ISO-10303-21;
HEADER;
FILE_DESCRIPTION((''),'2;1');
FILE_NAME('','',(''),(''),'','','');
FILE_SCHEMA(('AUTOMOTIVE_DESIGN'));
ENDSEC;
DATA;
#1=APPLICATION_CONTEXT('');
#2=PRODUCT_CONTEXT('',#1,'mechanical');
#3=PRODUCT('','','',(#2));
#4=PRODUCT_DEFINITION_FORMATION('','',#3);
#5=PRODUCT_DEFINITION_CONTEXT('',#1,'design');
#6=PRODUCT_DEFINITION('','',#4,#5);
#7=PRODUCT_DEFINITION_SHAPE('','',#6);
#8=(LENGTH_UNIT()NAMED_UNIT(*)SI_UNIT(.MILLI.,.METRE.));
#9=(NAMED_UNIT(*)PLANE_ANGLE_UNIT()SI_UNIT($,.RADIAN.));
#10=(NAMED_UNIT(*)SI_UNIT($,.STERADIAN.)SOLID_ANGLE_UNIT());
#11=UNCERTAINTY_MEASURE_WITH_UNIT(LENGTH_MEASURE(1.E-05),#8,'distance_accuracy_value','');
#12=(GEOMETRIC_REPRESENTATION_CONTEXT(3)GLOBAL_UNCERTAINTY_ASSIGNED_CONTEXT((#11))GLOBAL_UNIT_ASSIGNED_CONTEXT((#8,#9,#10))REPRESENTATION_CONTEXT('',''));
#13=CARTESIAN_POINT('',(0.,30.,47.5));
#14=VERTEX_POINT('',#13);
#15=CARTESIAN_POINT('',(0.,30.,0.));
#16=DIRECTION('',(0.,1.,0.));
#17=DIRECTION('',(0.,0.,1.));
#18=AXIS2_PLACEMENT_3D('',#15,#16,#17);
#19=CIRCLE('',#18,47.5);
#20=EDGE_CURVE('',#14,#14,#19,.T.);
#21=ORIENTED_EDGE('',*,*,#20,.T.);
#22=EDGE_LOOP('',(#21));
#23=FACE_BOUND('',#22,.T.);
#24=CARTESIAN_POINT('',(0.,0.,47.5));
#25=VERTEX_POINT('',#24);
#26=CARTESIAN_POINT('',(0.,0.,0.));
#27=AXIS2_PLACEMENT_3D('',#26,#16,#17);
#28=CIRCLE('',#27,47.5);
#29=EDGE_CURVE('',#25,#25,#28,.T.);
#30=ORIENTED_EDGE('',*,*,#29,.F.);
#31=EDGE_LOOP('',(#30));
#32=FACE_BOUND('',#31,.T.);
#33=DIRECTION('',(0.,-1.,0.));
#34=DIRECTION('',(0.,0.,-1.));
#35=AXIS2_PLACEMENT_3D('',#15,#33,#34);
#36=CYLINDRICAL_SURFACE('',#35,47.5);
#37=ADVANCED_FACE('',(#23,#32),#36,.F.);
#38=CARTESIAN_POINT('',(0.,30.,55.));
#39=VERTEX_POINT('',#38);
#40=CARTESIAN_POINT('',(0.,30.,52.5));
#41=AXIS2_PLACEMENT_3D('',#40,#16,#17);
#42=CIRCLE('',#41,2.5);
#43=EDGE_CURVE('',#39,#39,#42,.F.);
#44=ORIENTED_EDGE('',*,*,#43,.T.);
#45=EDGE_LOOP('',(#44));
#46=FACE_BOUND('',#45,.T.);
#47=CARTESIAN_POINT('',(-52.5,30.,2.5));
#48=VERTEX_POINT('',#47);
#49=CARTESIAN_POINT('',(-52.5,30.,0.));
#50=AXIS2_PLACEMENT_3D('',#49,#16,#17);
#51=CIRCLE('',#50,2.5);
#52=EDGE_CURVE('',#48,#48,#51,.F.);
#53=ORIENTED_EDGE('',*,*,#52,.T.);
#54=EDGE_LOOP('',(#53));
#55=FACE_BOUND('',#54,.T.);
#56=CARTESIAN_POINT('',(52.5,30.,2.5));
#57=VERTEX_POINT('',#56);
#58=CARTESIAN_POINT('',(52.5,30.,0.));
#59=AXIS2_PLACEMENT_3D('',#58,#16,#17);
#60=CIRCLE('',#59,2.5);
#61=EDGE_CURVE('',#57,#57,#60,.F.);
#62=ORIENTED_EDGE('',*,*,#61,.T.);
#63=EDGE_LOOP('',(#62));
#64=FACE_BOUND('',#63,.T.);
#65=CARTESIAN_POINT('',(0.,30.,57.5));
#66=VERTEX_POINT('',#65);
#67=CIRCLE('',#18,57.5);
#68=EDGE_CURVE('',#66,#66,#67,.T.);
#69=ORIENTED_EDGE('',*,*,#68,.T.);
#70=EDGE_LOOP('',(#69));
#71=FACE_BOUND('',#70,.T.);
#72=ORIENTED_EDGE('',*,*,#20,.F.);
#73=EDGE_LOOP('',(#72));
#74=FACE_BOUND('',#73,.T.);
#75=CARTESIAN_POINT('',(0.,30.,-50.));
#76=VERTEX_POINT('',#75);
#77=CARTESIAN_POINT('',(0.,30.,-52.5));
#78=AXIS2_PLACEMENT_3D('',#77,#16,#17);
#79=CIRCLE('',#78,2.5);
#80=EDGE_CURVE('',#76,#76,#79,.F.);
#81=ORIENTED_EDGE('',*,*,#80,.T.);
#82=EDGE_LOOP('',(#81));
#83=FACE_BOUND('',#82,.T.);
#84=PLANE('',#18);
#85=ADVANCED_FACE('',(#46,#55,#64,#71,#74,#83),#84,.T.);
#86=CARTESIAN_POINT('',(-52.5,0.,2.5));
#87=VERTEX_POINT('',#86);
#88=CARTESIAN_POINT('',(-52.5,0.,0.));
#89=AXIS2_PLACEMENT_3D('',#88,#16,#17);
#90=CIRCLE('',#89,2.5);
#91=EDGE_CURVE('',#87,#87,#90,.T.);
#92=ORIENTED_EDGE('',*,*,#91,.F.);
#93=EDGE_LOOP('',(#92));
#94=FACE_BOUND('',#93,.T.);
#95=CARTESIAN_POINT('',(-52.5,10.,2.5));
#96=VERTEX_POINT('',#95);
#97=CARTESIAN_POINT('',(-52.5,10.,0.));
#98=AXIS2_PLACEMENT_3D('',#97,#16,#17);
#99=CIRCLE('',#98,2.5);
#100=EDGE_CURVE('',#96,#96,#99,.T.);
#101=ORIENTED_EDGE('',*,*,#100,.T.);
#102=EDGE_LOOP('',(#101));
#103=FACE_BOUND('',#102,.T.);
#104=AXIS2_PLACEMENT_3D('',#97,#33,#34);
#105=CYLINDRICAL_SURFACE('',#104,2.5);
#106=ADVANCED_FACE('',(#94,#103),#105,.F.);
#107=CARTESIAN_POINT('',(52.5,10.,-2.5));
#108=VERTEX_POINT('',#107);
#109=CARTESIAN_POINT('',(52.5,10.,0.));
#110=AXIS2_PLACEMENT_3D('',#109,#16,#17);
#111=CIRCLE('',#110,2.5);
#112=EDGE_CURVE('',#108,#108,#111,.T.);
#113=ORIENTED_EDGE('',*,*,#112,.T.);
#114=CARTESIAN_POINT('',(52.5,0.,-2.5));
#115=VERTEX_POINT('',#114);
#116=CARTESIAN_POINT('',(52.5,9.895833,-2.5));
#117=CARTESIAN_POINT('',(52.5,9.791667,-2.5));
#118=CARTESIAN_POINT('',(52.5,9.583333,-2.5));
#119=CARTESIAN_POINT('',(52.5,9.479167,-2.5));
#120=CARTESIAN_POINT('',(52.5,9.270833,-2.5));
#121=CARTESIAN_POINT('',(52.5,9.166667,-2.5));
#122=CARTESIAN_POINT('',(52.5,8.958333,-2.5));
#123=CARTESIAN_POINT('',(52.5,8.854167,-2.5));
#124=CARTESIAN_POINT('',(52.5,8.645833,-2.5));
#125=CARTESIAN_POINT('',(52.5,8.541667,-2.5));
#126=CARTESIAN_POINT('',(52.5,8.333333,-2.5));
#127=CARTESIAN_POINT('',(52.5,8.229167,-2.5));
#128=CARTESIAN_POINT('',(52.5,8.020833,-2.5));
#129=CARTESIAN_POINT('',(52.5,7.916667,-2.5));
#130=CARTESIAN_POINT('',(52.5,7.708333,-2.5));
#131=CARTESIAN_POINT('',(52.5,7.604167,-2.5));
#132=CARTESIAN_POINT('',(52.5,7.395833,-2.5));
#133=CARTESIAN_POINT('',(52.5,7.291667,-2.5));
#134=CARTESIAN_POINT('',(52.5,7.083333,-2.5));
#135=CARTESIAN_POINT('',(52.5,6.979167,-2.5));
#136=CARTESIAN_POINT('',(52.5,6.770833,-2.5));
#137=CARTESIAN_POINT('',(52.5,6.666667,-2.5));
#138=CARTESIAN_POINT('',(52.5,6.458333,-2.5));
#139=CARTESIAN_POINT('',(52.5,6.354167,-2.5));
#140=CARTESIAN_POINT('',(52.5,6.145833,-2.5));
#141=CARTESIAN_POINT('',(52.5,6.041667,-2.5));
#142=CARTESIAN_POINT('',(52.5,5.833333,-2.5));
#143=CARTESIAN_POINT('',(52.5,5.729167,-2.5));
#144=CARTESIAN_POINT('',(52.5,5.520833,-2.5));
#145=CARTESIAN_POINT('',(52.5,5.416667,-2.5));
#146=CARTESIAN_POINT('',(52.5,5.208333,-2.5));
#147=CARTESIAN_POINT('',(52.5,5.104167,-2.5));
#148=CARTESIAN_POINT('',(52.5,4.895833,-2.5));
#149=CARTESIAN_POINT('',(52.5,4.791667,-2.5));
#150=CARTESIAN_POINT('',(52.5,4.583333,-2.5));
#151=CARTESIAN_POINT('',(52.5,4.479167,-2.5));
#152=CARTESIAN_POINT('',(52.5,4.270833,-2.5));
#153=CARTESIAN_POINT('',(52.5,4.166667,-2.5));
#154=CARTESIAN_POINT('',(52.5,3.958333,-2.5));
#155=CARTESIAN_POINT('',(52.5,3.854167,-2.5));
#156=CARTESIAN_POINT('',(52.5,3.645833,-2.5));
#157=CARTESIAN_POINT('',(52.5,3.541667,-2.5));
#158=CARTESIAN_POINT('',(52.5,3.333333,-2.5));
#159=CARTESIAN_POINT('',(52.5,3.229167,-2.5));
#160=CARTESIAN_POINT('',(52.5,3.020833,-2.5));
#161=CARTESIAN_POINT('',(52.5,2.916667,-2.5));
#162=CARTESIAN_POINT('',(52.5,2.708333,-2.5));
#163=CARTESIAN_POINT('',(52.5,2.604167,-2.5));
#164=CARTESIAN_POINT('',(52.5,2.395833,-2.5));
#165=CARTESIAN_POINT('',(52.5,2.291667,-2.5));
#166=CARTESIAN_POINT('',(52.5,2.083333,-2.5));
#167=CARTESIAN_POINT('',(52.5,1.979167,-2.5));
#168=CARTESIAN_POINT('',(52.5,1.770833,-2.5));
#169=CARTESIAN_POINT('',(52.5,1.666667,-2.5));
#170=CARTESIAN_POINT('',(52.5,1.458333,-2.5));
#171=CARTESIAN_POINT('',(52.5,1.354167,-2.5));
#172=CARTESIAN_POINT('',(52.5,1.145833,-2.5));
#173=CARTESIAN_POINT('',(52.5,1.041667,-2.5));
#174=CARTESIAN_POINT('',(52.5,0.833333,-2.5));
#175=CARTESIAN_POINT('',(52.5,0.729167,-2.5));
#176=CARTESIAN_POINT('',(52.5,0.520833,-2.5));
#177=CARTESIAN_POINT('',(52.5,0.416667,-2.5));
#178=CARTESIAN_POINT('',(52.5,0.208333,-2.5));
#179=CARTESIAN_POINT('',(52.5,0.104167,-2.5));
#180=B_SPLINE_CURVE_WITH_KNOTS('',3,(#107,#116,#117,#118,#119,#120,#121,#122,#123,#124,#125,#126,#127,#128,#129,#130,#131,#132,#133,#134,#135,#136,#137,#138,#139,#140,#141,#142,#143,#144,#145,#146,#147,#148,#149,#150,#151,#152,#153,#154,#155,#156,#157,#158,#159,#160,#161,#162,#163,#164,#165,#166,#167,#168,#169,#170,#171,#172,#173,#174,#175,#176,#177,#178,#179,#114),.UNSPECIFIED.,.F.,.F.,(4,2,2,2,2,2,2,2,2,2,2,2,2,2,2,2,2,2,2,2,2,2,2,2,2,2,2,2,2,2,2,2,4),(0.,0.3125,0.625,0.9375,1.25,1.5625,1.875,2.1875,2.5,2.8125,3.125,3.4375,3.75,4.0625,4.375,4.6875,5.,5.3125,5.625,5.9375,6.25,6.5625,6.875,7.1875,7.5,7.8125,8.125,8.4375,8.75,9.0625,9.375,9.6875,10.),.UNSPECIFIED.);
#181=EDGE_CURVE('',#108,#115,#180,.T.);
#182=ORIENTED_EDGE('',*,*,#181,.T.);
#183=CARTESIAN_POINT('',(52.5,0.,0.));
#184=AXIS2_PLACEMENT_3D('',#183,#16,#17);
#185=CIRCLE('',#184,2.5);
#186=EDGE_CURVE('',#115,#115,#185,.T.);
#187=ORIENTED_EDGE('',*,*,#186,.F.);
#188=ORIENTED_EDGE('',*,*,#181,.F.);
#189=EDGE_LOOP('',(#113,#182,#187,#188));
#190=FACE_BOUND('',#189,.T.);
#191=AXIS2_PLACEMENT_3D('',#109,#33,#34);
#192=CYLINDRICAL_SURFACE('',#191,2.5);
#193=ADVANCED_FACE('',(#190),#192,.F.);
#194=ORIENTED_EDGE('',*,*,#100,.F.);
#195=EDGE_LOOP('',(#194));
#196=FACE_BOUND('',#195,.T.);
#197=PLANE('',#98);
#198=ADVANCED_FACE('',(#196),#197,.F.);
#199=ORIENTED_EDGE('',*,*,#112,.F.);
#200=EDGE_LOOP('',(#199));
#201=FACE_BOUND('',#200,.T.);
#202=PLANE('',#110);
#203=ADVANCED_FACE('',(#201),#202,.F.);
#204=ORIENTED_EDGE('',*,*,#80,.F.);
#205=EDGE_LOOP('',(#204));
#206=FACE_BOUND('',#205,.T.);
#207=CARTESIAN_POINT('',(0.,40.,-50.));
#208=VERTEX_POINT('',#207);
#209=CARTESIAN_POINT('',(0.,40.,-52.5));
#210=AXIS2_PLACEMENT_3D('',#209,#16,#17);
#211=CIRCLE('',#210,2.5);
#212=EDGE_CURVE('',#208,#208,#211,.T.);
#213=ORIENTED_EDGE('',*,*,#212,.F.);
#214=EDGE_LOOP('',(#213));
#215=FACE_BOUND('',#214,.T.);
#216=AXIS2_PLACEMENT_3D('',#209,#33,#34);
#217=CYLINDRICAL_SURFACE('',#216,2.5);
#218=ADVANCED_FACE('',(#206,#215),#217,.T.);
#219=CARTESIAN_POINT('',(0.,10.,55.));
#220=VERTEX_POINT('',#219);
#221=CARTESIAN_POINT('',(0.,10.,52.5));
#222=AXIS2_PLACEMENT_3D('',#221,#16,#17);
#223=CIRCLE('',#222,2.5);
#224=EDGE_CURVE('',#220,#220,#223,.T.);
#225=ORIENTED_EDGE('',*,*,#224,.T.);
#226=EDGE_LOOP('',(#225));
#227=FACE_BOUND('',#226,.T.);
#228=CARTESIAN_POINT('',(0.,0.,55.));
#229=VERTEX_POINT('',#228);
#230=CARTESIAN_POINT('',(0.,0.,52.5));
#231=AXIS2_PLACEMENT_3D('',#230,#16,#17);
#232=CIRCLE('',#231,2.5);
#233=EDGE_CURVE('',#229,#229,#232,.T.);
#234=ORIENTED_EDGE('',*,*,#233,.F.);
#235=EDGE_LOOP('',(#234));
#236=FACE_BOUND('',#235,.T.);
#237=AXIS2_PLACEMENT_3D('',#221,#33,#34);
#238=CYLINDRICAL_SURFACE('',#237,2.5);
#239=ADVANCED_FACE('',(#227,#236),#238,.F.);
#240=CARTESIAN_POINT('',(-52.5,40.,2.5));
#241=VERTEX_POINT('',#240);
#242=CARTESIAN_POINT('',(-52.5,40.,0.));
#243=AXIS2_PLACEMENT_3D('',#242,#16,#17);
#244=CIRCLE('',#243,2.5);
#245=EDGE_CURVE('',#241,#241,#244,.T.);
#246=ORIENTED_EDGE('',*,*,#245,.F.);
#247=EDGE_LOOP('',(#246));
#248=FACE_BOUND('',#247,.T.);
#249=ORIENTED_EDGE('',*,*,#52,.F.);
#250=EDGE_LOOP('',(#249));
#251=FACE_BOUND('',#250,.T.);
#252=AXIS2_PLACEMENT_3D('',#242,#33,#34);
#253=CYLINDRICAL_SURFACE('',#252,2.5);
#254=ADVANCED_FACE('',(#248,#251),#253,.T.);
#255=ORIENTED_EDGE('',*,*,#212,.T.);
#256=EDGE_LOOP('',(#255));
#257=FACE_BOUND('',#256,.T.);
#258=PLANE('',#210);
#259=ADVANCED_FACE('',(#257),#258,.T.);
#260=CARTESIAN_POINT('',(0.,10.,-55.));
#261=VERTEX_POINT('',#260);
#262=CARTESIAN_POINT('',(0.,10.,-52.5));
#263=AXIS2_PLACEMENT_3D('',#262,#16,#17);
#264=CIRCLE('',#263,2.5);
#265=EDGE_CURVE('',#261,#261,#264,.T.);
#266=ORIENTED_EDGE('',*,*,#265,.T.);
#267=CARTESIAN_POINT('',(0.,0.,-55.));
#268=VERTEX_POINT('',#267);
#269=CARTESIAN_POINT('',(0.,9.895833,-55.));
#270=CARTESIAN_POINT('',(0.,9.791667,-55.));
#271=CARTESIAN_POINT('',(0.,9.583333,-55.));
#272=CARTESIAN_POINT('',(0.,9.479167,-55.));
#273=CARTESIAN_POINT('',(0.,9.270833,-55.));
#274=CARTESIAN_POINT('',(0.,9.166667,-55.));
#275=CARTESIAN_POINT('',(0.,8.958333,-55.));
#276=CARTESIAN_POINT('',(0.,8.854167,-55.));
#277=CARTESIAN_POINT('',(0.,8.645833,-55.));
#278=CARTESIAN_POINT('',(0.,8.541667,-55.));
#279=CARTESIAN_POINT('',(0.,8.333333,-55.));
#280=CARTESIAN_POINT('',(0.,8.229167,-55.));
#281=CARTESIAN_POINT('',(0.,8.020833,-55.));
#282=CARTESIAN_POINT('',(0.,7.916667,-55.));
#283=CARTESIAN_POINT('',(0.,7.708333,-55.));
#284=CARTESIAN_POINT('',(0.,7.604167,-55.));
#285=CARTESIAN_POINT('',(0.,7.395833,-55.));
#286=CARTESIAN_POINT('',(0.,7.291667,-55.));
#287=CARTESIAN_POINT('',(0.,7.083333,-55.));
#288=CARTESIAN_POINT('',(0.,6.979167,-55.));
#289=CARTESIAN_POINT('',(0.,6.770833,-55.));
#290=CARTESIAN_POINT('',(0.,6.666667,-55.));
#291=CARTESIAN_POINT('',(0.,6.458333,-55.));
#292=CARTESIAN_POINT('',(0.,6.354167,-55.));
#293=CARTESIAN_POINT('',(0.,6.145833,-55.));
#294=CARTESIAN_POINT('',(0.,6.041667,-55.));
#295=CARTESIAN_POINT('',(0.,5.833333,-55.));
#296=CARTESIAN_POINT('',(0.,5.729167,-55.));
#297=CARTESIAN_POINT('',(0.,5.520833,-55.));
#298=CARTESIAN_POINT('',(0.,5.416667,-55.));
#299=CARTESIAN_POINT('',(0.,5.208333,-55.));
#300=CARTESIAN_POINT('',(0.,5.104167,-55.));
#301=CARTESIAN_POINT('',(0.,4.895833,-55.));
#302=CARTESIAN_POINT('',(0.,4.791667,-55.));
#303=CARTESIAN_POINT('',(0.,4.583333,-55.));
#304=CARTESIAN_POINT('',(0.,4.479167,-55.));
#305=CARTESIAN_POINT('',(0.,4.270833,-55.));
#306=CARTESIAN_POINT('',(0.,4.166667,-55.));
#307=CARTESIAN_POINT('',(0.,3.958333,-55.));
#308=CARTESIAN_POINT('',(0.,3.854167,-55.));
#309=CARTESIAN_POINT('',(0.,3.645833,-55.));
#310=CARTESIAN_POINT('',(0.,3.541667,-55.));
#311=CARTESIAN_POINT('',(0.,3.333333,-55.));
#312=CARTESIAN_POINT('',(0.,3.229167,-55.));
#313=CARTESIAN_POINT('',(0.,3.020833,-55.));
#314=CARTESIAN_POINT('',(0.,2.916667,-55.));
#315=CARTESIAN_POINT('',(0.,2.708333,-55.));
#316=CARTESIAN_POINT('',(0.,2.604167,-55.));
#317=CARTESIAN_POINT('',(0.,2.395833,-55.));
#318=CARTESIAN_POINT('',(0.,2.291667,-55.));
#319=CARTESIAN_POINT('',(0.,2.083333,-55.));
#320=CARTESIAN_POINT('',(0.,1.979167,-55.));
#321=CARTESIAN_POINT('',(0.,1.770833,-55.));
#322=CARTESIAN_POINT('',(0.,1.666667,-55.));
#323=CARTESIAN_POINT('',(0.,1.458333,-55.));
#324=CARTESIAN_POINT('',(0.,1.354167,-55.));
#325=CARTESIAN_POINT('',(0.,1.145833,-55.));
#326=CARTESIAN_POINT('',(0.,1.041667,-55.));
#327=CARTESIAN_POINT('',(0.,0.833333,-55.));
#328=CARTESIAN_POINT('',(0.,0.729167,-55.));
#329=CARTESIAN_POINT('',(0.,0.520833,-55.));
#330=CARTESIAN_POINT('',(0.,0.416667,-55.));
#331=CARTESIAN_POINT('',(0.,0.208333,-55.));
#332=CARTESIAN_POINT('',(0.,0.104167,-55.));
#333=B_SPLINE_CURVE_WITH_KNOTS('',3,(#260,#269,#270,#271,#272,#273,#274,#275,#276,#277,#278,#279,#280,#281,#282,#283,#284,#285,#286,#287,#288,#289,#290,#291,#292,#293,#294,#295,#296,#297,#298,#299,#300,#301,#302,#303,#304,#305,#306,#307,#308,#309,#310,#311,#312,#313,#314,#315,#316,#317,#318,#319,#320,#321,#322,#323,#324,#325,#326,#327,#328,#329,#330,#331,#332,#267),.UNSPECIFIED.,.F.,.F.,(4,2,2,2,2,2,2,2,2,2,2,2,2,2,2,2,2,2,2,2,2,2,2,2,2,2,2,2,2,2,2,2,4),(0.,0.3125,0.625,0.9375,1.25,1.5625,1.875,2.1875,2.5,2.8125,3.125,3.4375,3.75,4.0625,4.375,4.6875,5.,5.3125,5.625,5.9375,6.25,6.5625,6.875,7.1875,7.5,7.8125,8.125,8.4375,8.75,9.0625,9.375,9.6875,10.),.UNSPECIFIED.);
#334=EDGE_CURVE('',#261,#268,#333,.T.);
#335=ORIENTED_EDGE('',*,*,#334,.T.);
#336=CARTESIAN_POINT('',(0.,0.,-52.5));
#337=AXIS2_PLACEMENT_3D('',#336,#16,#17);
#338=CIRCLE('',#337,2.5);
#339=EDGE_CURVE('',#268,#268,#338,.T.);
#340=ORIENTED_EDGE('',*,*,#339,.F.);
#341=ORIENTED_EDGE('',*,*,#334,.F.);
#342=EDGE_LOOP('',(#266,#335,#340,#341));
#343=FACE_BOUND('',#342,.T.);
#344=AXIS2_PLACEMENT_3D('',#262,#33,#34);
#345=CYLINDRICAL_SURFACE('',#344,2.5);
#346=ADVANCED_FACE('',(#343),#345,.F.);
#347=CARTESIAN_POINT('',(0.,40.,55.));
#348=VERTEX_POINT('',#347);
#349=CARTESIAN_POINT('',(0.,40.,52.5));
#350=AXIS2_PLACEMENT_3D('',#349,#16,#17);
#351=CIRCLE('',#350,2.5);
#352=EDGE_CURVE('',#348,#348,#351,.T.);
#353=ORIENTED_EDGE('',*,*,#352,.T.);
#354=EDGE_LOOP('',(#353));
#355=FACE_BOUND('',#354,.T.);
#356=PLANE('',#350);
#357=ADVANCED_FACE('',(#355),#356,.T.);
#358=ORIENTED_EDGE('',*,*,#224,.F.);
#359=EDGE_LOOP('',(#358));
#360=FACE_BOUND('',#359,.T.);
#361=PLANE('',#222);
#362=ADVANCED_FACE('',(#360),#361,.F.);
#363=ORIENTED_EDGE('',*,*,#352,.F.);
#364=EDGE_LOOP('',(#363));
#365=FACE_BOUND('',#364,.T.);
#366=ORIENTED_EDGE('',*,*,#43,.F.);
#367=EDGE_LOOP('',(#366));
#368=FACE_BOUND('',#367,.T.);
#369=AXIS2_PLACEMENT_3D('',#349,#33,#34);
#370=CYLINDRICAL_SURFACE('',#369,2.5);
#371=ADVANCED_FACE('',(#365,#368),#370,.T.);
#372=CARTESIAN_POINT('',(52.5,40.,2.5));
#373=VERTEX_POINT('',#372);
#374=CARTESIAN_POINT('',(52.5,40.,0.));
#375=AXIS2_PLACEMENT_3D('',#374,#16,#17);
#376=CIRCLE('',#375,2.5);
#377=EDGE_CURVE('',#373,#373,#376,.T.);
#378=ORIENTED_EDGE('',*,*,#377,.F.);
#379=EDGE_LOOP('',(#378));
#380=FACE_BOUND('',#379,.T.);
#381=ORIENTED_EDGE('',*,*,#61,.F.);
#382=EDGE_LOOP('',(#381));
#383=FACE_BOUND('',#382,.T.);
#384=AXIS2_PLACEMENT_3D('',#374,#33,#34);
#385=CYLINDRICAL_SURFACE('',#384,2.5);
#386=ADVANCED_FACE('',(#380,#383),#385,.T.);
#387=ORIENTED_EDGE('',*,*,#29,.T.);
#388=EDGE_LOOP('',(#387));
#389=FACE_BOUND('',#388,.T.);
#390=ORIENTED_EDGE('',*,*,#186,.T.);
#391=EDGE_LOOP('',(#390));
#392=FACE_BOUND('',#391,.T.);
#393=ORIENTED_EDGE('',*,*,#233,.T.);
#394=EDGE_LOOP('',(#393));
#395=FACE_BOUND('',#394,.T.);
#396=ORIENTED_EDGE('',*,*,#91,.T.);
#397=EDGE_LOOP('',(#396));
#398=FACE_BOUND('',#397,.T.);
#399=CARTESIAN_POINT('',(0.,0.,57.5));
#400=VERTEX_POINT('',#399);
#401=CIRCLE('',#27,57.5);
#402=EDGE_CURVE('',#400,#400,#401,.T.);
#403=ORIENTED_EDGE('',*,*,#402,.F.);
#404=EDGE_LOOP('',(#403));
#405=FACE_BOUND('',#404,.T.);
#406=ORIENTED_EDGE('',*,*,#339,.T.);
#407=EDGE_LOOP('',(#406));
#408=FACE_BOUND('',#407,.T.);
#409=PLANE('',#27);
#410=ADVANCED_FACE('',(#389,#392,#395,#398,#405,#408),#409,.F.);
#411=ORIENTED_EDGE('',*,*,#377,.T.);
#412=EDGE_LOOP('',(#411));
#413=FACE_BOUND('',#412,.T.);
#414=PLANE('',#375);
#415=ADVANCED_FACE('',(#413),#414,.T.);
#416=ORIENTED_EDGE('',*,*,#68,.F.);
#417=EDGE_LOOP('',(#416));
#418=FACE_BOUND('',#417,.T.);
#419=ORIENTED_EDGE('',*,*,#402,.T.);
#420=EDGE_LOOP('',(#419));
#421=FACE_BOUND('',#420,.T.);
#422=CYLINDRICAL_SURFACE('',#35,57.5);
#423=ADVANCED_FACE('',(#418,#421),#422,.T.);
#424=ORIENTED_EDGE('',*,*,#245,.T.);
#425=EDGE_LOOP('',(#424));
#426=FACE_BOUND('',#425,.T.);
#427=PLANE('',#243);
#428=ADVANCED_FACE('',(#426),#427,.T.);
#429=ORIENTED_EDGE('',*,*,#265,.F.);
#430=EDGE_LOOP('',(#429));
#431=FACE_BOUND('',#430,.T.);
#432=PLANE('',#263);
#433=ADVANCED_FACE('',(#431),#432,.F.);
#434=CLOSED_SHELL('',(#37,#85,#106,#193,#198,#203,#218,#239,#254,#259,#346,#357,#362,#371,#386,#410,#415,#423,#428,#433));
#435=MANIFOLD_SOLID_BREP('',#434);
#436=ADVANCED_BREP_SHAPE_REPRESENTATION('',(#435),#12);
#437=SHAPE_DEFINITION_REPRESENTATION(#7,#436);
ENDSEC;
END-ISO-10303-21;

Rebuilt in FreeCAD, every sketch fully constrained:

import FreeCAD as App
import Part
import Sketcher

V = App.Vector

doc = App.newDocument("Part")
body = doc.addObject("PartDesign::Body", "Body")

sketch1 = body.newObject("Sketcher::SketchObject", "Sketch")
sketch1.AttachmentSupport = (doc.getObject("XZ_Plane"), [""])
sketch1.MapMode = "FlatFace"
sketch1.addGeometry([
    Part.Circle(V(0, 0, 0), V(0, 0, 1), 58),
    Part.Circle(V(0, 0, 0), V(0, 0, 1), 48),
], False)
sketch1.addConstraint([
    Sketcher.Constraint("Coincident", 0, 3, -1, 1),
    Sketcher.Constraint("Coincident", 1, 3, -1, 1),
    Sketcher.Constraint("Diameter", 0, 115.0),
    Sketcher.Constraint("Diameter", 1, 95.0),
])
pad1 = body.newObject("PartDesign::Pad", "Pad")
pad1.Profile = sketch1
pad1.Length = 30
pad1.Reversed = True

sketch2 = body.newObject("Sketcher::SketchObject", "Sketch001")
sketch2.AttachmentSupport = (doc.getObject("XZ_Plane"), [""])
sketch2.MapMode = "FlatFace"
sketch2.addGeometry([
    Part.Circle(V(0, -52.5, 0), V(0, 0, 1), 2.5),
    Part.Circle(V(0, 52.5, 0), V(0, 0, 1), 2.5),
    Part.Circle(V(-52.5, 0, 0), V(0, 0, 1), 2.5),
    Part.Circle(V(52.5, 0, 0), V(0, 0, 1), 2.5),
], False)
sketch2.addConstraint([
    Sketcher.Constraint("Equal", 0, 1),
    Sketcher.Constraint("Equal", 1, 2),
    Sketcher.Constraint("Equal", 2, 3),
    Sketcher.Constraint("Symmetric", 0, 3, 1, 3, -1, 1),
    Sketcher.Constraint("Symmetric", 2, 3, 3, 3, -1, 1),
    Sketcher.Constraint("PointOnObject", 0, 3, -2),
    Sketcher.Constraint("PointOnObject", 2, 3, -1),
    Sketcher.Constraint("Diameter", 0, 5.0),
    Sketcher.Constraint("DistanceY", 0, 3, 1, 3, 105.0),
    Sketcher.Constraint("DistanceX", 2, 3, 3, 3, 105.0),
])
pad2 = body.newObject("PartDesign::Pad", "Pad001")
pad2.Profile = sketch2
pad2.Length = 40
pad2.Reversed = True

sketch3 = body.newObject("Sketcher::SketchObject", "Sketch002")
sketch3.AttachmentSupport = (doc.getObject("XZ_Plane"), [""])
sketch3.MapMode = "FlatFace"
sketch3.addGeometry(Part.Circle(V(52.5, 0, 0), V(0, 0, 1), 2.5), False)
sketch3.addConstraint([
    Sketcher.Constraint("PointOnObject", 0, 3, -1),
    Sketcher.Constraint("Diameter", 0, 5.0),
    Sketcher.Constraint("DistanceX", -1, 1, 0, 3, 52.5),
])
pocket1 = body.newObject("PartDesign::Pocket", "Pocket")
pocket1.Profile = sketch3
pocket1.Length = 10

sketch4 = body.newObject("Sketcher::SketchObject", "Sketch003")
sketch4.AttachmentSupport = (doc.getObject("XZ_Plane"), [""])
sketch4.MapMode = "FlatFace"
sketch4.addGeometry(Part.Circle(V(0, -52.5, 0), V(0, 0, 1), 2.5), False)
sketch4.addConstraint([
    Sketcher.Constraint("PointOnObject", 0, 3, -2),
    Sketcher.Constraint("Diameter", 0, 5.0),
    Sketcher.Constraint("DistanceY", 0, 3, -1, 1, 52.5),
])
pocket2 = body.newObject("PartDesign::Pocket", "Pocket001")
pocket2.Profile = sketch4
pocket2.Length = 10

sketch5 = body.newObject("Sketcher::SketchObject", "Sketch004")
sketch5.AttachmentSupport = (doc.getObject("XZ_Plane"), [""])
sketch5.MapMode = "FlatFace"
sketch5.addGeometry([
    Part.Circle(V(0, 52.5, 0), V(0, 0, 1), 2.5),
    Part.Circle(V(-52.5, 0, 0), V(0, 0, 1), 2.5),
    Part.Circle(V(0, -52.5, 0), V(0, 0, 1), 2.5),
    Part.Circle(V(52.5, 0, 0), V(0, 0, 1), 2.5),
], False)
sketch5.addConstraint([
    Sketcher.Constraint("Equal", 0, 1),
    Sketcher.Constraint("Equal", 1, 2),
    Sketcher.Constraint("Equal", 2, 3),
    Sketcher.Constraint("Symmetric", 0, 3, 2, 3, -1, 1),
    Sketcher.Constraint("Symmetric", 1, 3, 3, 3, -1, 1),
    Sketcher.Constraint("PointOnObject", 0, 3, -2),
    Sketcher.Constraint("PointOnObject", 1, 3, -1),
    Sketcher.Constraint("Diameter", 0, 5.0),
    Sketcher.Constraint("DistanceY", 2, 3, 0, 3, 105.0),
    Sketcher.Constraint("DistanceX", 1, 3, 3, 3, 105.0),
])
pocket3 = body.newObject("PartDesign::Pocket", "Pocket002")
pocket3.Profile = sketch5
pocket3.Length = 10

doc.recompute()
